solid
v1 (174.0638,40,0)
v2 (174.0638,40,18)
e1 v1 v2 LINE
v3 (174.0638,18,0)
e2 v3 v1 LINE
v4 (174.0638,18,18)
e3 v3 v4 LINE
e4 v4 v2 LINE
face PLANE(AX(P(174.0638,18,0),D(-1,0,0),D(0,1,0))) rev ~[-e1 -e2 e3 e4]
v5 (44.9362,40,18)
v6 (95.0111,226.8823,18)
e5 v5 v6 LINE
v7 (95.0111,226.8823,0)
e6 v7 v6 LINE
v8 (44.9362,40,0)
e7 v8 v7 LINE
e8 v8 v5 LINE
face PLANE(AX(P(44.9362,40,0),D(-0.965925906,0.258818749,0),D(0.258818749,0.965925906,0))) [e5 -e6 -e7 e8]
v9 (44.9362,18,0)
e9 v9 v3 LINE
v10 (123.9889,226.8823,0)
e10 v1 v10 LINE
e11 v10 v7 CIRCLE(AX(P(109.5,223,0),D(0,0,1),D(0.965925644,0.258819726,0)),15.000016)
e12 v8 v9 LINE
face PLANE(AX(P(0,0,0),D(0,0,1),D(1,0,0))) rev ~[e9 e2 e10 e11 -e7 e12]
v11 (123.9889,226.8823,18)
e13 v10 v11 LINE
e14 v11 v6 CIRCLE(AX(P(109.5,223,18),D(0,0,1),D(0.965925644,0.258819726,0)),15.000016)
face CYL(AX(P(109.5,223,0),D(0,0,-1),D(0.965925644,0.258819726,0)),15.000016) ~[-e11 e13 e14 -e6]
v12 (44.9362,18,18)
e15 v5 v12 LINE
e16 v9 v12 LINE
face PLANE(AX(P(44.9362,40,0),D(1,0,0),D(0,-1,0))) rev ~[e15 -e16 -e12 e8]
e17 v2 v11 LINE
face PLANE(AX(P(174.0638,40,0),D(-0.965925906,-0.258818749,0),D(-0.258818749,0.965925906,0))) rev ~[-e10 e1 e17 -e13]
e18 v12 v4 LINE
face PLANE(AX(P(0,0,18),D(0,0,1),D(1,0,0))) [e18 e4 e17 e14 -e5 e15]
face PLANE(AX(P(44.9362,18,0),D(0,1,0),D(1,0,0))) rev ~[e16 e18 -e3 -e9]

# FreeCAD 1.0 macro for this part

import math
import FreeCAD as App
import Part
import Sketcher
from FreeCAD import Vector
Q = App.Units.Quantity

doc = App.newDocument("Part")
body = doc.addObject("PartDesign::Body", "Body")

# Sketch on XY plane
sketch1 = body.newObject("Sketcher::SketchObject", "Sketch")
sketch1.AttachmentSupport = (doc.getObject("XY_Plane"), [""])
sketch1.MapMode = "FlatFace"
sketch1.addGeometry(Part.LineSegment(Vector(45, 40, 0), Vector(45, 18, 0)), False)
sketch1.addGeometry(Part.LineSegment(Vector(45, 18, 0), Vector(174, 18, 0)), False)
sketch1.addGeometry(Part.LineSegment(Vector(174, 18, 0), Vector(174, 40, 0)), False)
sketch1.addGeometry(Part.LineSegment(Vector(174, 40, 0), Vector(124, 227, 0)), False)
sketch1.addGeometry(Part.ArcOfCircle(Part.Circle(Vector(110, 223, 0), Vector(0, 0, 1), 15), math.radians(15), math.radians(165)), False)
sketch1.addGeometry(Part.LineSegment(Vector(95, 227, 0), Vector(45, 40, 0)), False)
sketch1.addConstraint(Sketcher.Constraint("Coincident", 0, 2, 1, 1))
sketch1.addConstraint(Sketcher.Constraint("Coincident", 1, 2, 2, 1))
sketch1.addConstraint(Sketcher.Constraint("Coincident", 2, 2, 3, 1))
sketch1.addConstraint(Sketcher.Constraint("Tangent", 3, 2, 4, 1))
sketch1.addConstraint(Sketcher.Constraint("Tangent", 4, 2, 5, 1))
sketch1.addConstraint(Sketcher.Constraint("Coincident", 5, 2, 0, 1))
sketch1.addConstraint(Sketcher.Constraint("Vertical", 0))
sketch1.addConstraint(Sketcher.Constraint("Horizontal", 1))
sketch1.addConstraint(Sketcher.Constraint("Vertical", 2))
sketch1.addConstraint(Sketcher.Constraint("Horizontal", 3, 2, 4, 2))
sketch1.addConstraint(Sketcher.Constraint("Horizontal", 2, 2, 5, 2))
sketch1.addConstraint(Sketcher.Constraint("Radius", 4, Q("15 mm")))
sketch1.addConstraint(Sketcher.Constraint("DistanceY", -1, 1, 0, 2, Q("18 mm")))
sketch1.addConstraint(Sketcher.Constraint("DistanceY", -1, 1, 2, 2, Q("40 mm")))
sketch1.addConstraint(Sketcher.Constraint("Angle", 3, Q("105 deg")))
sketch1.addConstraint(Sketcher.Constraint("DistanceY", -1, 1, 4, 3, Q("223 mm")))
sketch1.addConstraint(Sketcher.Constraint("DistanceX", -1, 1, 4, 3, Q("109.5 mm")))
pad1 = body.newObject("PartDesign::Pad", "Pad")
pad1.Profile = sketch1
pad1.Length = 18

doc.recompute()
